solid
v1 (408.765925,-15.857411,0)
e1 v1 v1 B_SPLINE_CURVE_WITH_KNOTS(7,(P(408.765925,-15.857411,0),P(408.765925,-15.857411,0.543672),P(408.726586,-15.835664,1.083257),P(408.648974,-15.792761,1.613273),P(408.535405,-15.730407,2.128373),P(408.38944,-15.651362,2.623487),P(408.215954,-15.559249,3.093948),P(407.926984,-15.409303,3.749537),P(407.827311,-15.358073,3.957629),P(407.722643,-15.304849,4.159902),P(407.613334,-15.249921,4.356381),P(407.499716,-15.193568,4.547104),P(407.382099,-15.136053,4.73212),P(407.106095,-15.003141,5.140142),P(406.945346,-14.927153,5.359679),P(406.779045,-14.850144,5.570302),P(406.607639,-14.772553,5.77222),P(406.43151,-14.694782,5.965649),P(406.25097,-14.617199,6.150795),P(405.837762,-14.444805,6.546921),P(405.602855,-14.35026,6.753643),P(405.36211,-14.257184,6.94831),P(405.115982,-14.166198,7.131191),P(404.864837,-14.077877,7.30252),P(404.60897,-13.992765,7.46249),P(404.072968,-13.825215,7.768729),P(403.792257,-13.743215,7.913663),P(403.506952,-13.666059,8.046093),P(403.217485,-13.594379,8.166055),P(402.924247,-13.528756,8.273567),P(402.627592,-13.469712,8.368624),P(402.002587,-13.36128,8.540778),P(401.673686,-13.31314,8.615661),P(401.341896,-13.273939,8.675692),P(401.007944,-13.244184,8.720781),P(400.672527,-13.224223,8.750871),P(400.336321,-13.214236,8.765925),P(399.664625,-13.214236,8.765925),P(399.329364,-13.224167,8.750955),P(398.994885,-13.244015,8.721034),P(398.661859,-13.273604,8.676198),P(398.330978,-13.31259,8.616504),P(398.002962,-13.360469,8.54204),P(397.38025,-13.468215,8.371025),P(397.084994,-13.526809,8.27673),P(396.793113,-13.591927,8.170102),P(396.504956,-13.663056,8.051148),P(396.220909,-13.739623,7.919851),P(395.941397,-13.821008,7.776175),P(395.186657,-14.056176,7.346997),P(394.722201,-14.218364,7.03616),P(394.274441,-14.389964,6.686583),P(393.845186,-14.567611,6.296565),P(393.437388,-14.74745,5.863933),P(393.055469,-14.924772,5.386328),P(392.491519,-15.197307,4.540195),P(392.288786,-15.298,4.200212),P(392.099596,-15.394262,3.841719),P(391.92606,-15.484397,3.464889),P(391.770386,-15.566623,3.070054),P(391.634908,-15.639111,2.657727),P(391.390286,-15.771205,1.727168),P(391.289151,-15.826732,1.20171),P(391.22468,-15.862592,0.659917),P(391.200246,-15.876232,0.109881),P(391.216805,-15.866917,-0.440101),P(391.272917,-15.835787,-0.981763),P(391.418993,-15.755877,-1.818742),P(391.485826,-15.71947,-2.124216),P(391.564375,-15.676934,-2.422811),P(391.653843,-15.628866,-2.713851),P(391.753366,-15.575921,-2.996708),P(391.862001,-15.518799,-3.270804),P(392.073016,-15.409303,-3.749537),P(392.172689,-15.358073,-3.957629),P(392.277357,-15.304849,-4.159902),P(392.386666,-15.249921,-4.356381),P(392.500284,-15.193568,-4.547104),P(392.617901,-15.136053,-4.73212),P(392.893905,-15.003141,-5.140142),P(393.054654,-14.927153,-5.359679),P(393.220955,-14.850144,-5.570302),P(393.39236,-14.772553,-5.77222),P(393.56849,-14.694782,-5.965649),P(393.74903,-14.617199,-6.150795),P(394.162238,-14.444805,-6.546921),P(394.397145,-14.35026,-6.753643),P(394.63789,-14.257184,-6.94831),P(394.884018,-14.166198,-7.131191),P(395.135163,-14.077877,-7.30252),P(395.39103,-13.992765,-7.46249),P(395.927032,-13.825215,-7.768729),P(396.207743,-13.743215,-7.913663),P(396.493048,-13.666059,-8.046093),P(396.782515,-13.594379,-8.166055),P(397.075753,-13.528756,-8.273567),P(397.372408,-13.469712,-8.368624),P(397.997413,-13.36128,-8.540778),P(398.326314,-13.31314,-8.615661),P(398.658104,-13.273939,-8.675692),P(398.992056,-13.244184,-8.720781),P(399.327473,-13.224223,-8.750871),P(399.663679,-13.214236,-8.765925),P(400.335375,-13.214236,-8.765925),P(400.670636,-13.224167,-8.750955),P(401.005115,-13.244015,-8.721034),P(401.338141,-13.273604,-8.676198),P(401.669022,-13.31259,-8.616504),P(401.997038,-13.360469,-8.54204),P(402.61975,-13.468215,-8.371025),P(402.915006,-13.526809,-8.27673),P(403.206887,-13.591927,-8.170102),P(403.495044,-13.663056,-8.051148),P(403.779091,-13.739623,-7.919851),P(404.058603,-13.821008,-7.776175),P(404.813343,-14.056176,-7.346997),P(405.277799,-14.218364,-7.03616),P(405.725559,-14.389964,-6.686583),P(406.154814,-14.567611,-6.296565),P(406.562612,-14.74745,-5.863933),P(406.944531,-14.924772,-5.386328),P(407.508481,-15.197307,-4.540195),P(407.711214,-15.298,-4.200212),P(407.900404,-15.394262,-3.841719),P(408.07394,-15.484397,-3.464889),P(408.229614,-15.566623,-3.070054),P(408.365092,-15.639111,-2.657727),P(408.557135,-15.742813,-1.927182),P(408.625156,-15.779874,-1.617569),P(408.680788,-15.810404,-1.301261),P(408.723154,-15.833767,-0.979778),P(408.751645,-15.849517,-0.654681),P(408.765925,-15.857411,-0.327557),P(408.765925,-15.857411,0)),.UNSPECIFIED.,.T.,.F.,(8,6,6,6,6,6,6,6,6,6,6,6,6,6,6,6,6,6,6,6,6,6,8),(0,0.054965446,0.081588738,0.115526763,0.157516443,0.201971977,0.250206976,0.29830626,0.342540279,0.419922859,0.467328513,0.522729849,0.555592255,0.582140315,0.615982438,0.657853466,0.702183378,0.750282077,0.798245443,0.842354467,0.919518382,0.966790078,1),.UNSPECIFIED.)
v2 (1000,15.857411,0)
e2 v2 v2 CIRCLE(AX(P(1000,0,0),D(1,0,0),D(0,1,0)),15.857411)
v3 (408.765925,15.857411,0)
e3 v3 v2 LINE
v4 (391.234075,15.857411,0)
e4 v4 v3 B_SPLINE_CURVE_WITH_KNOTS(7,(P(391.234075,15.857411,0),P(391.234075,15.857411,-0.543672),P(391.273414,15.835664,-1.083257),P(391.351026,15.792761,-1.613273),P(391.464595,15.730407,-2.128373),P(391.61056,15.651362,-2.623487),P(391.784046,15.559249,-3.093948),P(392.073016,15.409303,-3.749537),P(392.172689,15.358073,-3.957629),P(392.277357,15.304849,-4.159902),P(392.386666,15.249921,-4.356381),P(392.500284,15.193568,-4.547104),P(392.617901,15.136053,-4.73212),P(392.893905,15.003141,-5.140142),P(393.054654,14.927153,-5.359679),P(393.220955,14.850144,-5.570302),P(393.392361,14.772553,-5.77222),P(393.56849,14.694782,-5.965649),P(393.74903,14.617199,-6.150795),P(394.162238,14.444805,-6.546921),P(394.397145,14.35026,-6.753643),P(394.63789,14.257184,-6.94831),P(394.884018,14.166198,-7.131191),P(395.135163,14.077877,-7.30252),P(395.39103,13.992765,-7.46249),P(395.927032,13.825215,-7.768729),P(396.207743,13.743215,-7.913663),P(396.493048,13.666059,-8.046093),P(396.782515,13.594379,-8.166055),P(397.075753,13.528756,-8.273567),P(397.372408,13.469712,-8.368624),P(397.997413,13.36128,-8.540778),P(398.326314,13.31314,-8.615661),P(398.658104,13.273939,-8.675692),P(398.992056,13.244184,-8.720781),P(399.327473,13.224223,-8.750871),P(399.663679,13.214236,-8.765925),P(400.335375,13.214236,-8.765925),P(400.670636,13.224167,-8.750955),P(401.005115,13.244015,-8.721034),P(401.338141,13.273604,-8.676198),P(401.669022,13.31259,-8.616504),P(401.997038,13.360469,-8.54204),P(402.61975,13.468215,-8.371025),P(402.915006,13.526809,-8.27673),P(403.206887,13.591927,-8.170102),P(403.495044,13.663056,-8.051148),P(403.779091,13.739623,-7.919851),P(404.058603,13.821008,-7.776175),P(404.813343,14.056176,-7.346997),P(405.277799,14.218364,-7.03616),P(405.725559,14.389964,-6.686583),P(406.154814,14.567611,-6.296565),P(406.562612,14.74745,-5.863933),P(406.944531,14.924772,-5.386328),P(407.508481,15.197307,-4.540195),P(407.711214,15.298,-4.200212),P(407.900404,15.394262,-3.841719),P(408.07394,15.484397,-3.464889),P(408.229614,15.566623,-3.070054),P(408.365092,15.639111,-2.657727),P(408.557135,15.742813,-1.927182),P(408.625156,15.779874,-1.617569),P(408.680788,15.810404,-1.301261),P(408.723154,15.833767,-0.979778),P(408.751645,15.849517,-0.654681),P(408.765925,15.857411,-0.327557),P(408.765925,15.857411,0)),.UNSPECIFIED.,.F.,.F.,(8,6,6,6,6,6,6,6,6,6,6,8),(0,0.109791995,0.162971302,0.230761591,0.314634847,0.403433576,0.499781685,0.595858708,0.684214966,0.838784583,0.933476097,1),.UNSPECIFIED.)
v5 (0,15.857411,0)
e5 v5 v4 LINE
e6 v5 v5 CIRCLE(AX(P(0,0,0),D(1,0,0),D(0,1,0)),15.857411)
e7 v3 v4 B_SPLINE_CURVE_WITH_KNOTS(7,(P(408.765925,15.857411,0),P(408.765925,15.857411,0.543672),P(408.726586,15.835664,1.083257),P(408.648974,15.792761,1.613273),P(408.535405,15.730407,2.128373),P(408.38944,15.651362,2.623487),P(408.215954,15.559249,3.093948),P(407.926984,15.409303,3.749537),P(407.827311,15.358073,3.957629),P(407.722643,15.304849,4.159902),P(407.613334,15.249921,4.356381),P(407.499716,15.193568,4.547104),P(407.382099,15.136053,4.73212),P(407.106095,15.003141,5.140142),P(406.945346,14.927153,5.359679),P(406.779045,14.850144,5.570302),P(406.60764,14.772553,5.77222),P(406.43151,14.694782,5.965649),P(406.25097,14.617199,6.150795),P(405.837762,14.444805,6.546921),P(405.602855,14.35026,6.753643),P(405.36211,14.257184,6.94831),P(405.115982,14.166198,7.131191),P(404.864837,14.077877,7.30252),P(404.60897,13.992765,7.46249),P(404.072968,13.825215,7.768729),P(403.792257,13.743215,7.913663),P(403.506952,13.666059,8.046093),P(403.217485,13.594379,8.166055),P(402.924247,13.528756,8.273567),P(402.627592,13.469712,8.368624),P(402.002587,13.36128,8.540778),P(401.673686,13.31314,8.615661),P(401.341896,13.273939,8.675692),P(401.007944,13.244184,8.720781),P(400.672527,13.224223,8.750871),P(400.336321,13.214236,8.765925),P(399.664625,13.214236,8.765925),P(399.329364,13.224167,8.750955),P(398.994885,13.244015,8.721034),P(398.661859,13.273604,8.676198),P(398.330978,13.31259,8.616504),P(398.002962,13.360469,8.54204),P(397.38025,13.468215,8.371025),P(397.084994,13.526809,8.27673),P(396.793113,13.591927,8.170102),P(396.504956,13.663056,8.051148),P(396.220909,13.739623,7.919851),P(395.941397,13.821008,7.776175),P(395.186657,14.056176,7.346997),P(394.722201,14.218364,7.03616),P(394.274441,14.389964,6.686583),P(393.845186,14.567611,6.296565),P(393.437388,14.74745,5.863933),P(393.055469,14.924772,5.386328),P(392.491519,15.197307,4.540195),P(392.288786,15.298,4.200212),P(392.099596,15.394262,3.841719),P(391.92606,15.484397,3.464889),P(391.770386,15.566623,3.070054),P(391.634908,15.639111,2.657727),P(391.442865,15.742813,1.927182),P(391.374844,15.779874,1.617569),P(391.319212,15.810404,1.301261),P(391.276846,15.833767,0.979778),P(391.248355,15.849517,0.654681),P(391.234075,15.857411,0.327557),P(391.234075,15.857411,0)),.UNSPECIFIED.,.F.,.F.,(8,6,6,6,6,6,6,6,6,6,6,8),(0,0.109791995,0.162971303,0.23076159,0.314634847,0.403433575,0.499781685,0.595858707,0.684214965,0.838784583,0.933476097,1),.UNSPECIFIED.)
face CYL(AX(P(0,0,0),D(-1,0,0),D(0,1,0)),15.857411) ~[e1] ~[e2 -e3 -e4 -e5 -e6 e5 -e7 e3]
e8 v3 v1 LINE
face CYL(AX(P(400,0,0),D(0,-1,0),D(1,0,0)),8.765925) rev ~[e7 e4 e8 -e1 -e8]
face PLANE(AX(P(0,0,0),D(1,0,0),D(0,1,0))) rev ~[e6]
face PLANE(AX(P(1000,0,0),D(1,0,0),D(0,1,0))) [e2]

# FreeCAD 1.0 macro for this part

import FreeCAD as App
import Part
import Sketcher
from FreeCAD import Vector
Q = App.Units.Quantity

doc = App.newDocument("Part")
body = doc.addObject("PartDesign::Body", "Body")

# Sketch on YZ plane
sketch1 = doc.addObject("Sketcher::SketchObject", "Sketch")
body.addObject(sketch1)
sketch1.AttachmentSupport = (doc.YZ_Plane, [""])
sketch1.MapMode = "FlatFace"
sketch1.addGeometry(Part.Circle(Vector(0, 0, 0), Vector(0, 0, 1), 16), False)
sketch1.addConstraint(Sketcher.Constraint("Coincident", 0, 3, -1, 1))
sketch1.addConstraint(Sketcher.Constraint("Diameter", 0, Q("31.714822 mm")))
pad1 = doc.addObject("PartDesign::Pad", "Pad")
body.addObject(pad1)
pad1.Profile = sketch1
pad1.Length = 1000

# Sketch on XZ plane
sketch2 = doc.addObject("Sketcher::SketchObject", "Sketch001")
body.addObject(sketch2)
sketch2.AttachmentSupport = (doc.XZ_Plane, [""])
sketch2.MapMode = "FlatFace"
sketch2.addGeometry(Part.Circle(Vector(400, 0, 0), Vector(0, 0, 1), 9), False)
sketch2.addConstraint(Sketcher.Constraint("PointOnObject", 0, 3, -1))
sketch2.addConstraint(Sketcher.Constraint("DistanceX", -1, 1, 0, 3, Q("400 mm")))
sketch2.addConstraint(Sketcher.Constraint("Diameter", 0, Q("17.53185 mm")))
pocket1 = doc.addObject("PartDesign::Pocket", "Pocket")
body.addObject(pocket1)
pocket1.Profile = sketch2
pocket1.Length = 50
pocket1.Midplane = True

doc.recompute()
